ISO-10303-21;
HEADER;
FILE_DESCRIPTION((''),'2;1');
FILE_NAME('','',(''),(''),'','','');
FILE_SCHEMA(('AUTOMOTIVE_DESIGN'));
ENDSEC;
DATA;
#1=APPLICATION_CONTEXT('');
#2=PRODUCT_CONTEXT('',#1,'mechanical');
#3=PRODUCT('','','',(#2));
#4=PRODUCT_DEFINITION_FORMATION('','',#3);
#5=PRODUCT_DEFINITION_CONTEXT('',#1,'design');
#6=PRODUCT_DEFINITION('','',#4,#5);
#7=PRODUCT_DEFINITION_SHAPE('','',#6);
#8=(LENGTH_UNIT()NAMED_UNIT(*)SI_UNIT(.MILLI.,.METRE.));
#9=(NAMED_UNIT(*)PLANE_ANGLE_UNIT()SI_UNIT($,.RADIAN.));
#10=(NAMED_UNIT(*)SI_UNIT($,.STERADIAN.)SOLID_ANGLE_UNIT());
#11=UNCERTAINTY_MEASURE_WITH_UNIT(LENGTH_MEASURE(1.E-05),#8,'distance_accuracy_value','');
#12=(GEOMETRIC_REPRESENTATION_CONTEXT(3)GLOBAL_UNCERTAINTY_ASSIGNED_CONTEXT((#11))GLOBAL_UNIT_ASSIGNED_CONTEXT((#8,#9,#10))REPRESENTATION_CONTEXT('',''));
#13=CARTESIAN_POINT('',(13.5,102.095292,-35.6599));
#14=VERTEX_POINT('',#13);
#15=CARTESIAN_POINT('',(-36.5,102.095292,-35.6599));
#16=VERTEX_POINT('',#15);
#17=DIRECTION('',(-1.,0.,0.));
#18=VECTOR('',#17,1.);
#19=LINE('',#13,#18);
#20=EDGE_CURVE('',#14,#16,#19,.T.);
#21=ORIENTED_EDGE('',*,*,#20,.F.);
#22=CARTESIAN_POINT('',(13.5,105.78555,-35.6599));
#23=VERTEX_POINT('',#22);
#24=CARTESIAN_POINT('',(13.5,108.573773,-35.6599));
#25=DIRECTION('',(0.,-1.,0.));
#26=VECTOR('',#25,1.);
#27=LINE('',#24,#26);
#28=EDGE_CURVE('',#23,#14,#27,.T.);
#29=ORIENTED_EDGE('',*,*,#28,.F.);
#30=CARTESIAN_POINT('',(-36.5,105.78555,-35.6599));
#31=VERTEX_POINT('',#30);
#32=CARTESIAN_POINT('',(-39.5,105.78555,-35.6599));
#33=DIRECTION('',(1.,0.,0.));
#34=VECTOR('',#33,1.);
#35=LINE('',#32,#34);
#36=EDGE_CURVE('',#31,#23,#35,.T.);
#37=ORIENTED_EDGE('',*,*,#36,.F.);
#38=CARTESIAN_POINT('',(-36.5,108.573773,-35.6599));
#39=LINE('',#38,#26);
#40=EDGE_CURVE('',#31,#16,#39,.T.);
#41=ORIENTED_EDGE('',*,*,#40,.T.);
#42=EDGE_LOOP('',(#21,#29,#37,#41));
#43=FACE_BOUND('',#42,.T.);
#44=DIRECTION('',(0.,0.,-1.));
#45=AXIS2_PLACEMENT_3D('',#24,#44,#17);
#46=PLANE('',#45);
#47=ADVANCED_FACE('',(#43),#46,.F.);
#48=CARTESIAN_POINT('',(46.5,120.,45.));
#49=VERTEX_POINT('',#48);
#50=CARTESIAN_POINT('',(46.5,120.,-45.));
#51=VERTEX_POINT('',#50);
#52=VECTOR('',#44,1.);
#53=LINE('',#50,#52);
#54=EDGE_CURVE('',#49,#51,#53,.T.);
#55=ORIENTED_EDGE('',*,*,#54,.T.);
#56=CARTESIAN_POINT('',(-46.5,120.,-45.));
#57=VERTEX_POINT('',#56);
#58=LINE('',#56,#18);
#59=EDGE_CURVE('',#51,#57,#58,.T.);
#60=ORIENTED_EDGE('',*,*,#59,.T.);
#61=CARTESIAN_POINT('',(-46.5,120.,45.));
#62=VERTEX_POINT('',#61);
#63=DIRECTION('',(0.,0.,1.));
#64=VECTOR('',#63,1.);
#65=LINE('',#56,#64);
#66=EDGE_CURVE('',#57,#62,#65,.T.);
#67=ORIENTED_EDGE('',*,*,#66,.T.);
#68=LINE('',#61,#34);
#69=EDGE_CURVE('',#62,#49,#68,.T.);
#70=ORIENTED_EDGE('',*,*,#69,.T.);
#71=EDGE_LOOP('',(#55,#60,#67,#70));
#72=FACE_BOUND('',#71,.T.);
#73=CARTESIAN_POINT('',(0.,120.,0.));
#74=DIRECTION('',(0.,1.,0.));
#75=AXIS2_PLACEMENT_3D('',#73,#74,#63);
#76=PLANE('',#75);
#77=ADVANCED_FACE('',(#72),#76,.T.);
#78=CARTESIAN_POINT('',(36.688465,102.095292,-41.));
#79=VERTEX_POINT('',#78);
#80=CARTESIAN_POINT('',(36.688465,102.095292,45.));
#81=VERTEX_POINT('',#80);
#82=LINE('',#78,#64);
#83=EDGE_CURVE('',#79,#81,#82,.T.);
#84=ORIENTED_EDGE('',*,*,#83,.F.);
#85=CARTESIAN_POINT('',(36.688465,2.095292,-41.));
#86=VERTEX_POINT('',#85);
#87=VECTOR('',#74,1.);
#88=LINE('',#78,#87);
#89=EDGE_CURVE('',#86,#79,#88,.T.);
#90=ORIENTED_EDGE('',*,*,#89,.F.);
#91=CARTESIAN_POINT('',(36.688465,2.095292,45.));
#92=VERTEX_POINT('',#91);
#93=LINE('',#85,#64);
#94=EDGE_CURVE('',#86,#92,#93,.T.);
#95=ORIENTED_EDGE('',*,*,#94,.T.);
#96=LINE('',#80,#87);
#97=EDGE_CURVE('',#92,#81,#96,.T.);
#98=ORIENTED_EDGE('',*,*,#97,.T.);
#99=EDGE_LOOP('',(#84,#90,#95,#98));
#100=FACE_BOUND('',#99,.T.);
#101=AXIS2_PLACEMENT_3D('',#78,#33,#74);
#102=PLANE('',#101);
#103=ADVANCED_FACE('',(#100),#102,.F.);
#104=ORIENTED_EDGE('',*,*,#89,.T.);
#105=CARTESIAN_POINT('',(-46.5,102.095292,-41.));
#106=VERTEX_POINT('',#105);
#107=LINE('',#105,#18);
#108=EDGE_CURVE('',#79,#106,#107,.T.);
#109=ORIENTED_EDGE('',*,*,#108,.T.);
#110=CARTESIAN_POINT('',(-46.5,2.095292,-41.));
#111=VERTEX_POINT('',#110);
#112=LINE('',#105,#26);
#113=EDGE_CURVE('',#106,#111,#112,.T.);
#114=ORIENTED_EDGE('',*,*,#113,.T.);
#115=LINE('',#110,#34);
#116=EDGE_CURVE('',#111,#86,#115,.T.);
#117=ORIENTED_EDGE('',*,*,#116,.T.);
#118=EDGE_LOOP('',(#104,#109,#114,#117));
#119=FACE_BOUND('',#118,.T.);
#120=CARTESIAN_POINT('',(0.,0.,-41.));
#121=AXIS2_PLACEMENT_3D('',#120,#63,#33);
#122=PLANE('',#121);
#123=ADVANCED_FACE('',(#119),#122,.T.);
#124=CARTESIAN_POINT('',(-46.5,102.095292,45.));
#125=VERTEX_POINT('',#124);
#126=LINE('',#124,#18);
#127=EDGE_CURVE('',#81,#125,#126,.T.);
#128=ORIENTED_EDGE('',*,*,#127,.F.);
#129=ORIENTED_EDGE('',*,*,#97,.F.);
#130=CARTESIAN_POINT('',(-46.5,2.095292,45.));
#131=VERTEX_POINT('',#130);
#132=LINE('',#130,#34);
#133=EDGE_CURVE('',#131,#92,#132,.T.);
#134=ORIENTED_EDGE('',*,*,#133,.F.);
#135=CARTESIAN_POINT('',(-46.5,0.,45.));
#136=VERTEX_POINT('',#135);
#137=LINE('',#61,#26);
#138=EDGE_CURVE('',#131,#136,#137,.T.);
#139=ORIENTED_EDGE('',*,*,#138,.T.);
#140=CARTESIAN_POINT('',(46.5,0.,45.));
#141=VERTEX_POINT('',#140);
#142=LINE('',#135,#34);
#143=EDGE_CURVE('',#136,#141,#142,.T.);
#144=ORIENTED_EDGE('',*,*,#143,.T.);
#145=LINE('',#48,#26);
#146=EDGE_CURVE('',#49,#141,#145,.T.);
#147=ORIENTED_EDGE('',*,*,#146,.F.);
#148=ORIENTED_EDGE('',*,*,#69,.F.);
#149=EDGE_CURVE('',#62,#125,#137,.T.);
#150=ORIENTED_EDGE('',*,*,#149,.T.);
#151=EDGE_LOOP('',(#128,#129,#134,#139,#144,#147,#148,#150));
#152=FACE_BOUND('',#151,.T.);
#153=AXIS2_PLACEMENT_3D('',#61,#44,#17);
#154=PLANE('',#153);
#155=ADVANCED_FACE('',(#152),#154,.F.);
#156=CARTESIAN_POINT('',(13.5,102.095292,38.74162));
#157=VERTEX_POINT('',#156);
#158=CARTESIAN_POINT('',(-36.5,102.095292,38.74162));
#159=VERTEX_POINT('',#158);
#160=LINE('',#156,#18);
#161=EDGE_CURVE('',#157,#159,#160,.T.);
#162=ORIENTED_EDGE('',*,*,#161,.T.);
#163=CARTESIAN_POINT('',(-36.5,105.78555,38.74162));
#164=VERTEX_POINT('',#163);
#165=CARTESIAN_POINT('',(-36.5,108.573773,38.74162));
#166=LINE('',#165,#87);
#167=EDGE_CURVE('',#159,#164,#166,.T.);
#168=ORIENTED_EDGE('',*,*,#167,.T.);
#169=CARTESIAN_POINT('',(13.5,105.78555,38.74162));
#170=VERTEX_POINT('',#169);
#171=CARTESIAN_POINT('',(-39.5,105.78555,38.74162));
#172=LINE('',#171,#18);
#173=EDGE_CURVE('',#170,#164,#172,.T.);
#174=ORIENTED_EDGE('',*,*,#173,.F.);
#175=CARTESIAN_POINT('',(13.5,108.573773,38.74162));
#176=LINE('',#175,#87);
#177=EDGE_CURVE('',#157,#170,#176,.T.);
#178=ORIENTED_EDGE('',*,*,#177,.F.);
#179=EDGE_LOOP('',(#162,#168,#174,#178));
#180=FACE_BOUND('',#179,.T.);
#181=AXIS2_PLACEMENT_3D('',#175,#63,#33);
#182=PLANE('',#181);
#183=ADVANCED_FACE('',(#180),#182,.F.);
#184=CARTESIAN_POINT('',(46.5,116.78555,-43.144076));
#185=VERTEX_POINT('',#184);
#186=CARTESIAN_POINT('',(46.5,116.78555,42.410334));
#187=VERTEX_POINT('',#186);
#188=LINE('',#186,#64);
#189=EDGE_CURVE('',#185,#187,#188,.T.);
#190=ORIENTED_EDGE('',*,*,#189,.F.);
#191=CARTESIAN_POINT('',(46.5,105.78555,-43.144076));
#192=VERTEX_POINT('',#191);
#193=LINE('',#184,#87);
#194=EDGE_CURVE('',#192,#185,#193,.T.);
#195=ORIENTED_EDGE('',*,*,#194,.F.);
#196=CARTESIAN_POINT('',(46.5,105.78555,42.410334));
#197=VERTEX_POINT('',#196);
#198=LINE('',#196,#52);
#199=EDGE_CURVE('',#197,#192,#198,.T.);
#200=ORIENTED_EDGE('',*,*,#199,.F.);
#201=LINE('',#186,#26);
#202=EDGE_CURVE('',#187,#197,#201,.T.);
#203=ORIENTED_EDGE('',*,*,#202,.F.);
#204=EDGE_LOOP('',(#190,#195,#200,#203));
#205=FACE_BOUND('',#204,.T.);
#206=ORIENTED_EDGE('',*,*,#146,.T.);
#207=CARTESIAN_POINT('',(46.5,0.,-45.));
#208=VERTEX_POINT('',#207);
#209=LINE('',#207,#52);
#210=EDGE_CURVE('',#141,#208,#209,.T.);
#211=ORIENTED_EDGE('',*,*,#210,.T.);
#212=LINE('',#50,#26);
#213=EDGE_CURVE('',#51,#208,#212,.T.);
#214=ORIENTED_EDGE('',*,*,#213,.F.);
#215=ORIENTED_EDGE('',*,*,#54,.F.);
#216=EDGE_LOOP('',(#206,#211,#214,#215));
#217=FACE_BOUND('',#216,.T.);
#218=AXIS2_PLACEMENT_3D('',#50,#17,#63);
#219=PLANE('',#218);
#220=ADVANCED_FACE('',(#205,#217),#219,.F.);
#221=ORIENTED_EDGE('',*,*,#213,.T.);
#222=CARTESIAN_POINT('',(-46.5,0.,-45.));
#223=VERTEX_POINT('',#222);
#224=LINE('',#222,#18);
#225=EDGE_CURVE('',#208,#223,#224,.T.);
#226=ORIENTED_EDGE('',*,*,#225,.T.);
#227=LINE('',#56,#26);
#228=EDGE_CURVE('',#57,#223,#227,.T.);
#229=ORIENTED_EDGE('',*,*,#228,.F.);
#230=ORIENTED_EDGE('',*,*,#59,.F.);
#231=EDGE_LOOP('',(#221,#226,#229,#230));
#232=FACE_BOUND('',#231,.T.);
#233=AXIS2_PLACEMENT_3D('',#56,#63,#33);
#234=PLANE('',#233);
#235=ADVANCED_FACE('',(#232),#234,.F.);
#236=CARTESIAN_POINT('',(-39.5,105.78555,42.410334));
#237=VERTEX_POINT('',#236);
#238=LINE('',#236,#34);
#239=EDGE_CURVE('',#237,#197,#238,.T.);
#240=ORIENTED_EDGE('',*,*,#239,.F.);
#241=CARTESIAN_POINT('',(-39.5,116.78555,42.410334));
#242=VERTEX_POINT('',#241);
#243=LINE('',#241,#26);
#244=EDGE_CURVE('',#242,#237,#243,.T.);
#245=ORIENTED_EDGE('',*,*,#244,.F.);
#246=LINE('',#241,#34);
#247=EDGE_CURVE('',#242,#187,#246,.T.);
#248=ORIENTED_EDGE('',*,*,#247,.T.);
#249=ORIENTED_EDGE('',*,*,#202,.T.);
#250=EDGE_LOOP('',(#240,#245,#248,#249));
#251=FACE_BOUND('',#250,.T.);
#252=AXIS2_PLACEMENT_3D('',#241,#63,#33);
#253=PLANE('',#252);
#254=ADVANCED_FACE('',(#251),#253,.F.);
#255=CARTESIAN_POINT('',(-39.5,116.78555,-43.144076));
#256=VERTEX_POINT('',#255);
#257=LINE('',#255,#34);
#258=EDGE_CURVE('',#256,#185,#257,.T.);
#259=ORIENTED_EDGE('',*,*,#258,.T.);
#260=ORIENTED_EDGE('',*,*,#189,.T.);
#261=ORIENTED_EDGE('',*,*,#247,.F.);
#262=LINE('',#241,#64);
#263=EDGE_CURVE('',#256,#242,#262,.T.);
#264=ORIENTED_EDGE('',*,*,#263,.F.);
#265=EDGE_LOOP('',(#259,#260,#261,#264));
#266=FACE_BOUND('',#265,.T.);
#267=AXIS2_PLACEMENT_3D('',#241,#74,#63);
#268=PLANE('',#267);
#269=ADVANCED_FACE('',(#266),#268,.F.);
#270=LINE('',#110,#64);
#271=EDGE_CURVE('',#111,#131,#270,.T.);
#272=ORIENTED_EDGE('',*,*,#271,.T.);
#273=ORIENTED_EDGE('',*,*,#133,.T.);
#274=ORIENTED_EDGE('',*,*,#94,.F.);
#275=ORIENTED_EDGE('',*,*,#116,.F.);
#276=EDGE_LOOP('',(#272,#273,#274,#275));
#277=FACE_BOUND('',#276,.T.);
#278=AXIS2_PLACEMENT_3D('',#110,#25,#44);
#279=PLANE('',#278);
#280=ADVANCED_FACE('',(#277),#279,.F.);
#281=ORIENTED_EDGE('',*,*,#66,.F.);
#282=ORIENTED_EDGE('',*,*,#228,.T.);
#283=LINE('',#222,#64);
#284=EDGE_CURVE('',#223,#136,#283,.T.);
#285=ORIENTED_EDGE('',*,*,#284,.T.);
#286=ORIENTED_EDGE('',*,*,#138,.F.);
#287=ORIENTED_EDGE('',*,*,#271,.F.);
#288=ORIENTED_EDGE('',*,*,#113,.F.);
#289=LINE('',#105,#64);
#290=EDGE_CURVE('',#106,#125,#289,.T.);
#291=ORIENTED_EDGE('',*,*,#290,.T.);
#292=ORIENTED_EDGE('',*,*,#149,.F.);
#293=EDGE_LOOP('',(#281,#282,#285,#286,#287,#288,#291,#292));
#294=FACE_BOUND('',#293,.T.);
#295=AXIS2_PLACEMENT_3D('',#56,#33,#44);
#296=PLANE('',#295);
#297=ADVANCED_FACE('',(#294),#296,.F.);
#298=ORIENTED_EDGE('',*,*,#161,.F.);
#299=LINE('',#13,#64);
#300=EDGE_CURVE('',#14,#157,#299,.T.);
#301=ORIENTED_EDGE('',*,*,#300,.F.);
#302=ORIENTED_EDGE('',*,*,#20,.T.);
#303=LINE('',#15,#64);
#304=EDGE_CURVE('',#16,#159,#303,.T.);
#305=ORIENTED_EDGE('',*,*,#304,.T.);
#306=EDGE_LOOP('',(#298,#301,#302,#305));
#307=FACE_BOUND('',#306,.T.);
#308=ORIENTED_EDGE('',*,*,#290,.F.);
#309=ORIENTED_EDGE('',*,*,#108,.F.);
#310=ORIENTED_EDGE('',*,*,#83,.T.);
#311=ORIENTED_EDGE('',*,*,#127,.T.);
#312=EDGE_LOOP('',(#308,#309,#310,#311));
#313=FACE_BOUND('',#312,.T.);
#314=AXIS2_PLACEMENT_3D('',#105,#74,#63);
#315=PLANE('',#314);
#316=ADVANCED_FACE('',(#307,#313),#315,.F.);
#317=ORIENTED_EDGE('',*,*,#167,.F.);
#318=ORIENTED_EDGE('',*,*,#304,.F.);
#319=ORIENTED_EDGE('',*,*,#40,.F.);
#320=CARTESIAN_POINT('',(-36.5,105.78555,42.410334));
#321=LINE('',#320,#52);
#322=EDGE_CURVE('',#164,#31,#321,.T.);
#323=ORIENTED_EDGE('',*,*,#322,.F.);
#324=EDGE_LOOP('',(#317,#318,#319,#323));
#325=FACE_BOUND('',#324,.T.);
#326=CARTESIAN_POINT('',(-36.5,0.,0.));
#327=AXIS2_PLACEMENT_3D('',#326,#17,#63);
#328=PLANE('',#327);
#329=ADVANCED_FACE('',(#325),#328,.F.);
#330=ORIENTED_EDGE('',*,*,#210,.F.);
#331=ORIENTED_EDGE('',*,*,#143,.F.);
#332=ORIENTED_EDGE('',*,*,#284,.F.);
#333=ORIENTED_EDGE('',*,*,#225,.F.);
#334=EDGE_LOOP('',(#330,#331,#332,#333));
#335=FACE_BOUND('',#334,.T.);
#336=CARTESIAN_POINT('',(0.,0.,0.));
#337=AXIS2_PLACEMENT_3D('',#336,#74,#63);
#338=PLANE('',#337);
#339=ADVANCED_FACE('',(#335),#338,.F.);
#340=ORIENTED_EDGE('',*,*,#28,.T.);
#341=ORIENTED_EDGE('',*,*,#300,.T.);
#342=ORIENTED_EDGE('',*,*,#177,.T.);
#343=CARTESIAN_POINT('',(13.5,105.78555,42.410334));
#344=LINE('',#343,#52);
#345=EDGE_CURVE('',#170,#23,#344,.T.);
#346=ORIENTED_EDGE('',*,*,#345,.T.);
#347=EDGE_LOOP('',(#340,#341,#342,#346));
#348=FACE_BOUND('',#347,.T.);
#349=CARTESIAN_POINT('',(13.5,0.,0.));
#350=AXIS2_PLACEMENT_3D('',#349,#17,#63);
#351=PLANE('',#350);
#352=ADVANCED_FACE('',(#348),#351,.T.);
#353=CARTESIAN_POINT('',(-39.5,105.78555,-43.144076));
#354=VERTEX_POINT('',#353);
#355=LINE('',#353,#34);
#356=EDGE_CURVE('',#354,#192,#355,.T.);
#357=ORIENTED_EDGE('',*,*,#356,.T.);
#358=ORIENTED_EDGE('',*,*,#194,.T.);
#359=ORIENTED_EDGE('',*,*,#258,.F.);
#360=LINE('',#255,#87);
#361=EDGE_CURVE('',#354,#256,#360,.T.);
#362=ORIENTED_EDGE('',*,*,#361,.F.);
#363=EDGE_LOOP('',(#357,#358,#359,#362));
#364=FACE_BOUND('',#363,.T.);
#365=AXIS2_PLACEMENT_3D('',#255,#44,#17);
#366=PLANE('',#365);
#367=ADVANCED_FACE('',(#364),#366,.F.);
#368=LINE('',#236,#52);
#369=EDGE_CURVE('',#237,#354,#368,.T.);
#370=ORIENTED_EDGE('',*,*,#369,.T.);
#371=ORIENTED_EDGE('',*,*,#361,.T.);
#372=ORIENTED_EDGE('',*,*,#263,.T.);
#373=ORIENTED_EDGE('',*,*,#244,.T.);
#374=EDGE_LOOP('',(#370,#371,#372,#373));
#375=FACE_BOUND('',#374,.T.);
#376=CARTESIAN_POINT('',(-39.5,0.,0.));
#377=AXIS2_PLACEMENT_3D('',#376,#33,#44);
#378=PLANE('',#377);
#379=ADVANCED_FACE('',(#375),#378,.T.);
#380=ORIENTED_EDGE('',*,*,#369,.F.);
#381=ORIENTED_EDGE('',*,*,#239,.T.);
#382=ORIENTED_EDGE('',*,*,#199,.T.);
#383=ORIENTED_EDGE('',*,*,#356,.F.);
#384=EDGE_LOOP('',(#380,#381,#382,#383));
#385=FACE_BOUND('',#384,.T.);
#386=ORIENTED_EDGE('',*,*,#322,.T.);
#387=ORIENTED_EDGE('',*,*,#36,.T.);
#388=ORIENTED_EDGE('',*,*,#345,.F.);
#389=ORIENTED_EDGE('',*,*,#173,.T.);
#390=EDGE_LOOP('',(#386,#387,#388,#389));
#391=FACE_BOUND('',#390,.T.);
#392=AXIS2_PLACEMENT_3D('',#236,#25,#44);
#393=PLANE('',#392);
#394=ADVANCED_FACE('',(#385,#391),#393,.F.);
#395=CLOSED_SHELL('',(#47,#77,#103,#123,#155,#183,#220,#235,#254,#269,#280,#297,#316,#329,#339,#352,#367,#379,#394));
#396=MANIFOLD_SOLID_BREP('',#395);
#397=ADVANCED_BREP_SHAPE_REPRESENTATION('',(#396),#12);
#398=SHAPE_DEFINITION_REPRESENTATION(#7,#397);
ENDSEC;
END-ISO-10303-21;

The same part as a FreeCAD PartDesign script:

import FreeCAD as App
import Part
import Sketcher
Q = App.Units.Quantity


def add_polygon(sketch, points):
    """Adds a closed chain of lines whose ends are joined by coincident constraints."""
    first, n = sketch.GeometryCount, len(points)
    for a, b in zip(points, points[1:] + points[:1]):
        sketch.addGeometry(Part.LineSegment(App.Vector(*a, 0), App.Vector(*b, 0)), False)
    for i in range(n):
        sketch.addConstraint(Sketcher.Constraint("Coincident", first + i, 2, first + (i + 1) % n, 1))

doc = App.newDocument("Part")
body = doc.addObject("PartDesign::Body", "Body")

sketch1 = body.newObject("Sketcher::SketchObject", "Sketch")
sketch1.AttachmentSupport = (doc.getObject("XZ_Plane"), [""])
sketch1.MapMode = "FlatFace"
add_polygon(sketch1, [(-46.5, -45), (-46.5, 45), (46.5, 45), (46.5, -45)])
sketch1.addConstraint(Sketcher.Constraint("Vertical", 0))
sketch1.addConstraint(Sketcher.Constraint("Horizontal", 1))
sketch1.addConstraint(Sketcher.Constraint("Vertical", 2))
sketch1.addConstraint(Sketcher.Constraint("Horizontal", 3))
sketch1.addConstraint(Sketcher.Constraint("Symmetric", 0, 2, 2, 2, -1, 1))
sketch1.addConstraint(Sketcher.Constraint("DistanceX", 1, 1, 1, 2, Q("93 mm")))
sketch1.addConstraint(Sketcher.Constraint("DistanceY", 0, 1, 0, 2, Q("90 mm")))
pad1 = body.newObject("PartDesign::Pad", "Pad")
pad1.Profile = sketch1
pad1.Length = 120
pad1.Reversed = True

sketch2 = body.newObject("Sketcher::SketchObject", "Sketch001")
sketch2.AttachmentSupport = (doc.getObject("XY_Plane"), [""])
sketch2.MapMode = "FlatFace"
sketch2.AttachmentOffset = App.Placement(App.Vector(0, 0, 45), App.Rotation())
add_polygon(sketch2, [(-46.5, 102.095292), (-46.5, 2.095292), (36.688465, 2.095292), (36.688465, 102.095292)])
sketch2.addConstraint(Sketcher.Constraint("Vertical", 0))
sketch2.addConstraint(Sketcher.Constraint("Horizontal", 1))
sketch2.addConstraint(Sketcher.Constraint("Vertical", 2))
sketch2.addConstraint(Sketcher.Constraint("Horizontal", 3))
sketch2.addConstraint(Sketcher.Constraint("DistanceY", 0, 2, 0, 1, Q("100 mm")))
sketch2.addConstraint(Sketcher.Constraint("DistanceX", 0, 2, -1, 1, Q("46.5 mm")))
sketch2.addConstraint(Sketcher.Constraint("DistanceX", 1, 1, 1, 2, Q("83.188465 mm")))
sketch2.addConstraint(Sketcher.Constraint("DistanceY", -1, 1, 0, 2, Q("2.095292 mm")))
pocket1 = body.newObject("PartDesign::Pocket", "Pocket")
pocket1.Profile = sketch2
pocket1.Length = 86

sketch3 = body.newObject("Sketcher::SketchObject", "Sketch002")
sketch3.AttachmentSupport = (doc.getObject("YZ_Plane"), [""])
sketch3.MapMode = "FlatFace"
sketch3.AttachmentOffset = App.Placement(App.Vector(0, 0, 46.5), App.Rotation())
add_polygon(sketch3, [(116.78555, 42.410334), (105.78555, 42.410334), (105.78555, -43.144076), (116.78555, -43.144076)])
sketch3.addConstraint(Sketcher.Constraint("Horizontal", 0))
sketch3.addConstraint(Sketcher.Constraint("Vertical", 1))
sketch3.addConstraint(Sketcher.Constraint("Horizontal", 2))
sketch3.addConstraint(Sketcher.Constraint("Vertical", 3))
sketch3.addConstraint(Sketcher.Constraint("DistanceX", 0, 2, 0, 1, Q("11 mm")))
sketch3.addConstraint(Sketcher.Constraint("DistanceY", 1, 2, 1, 1, Q("85.55441 mm")))
sketch3.addConstraint(Sketcher.Constraint("DistanceX", -1, 1, 0, 2, Q("105.78555 mm")))
sketch3.addConstraint(Sketcher.Constraint("DistanceY", -1, 1, 0, 2, Q("42.410334 mm")))
pocket2 = body.newObject("PartDesign::Pocket", "Pocket001")
pocket2.Profile = sketch3
pocket2.Length = 86

sketch4 = body.newObject("Sketcher::SketchObject", "Sketch003")
sketch4.AttachmentSupport = (doc.getObject("YZ_Plane"), [""])
sketch4.MapMode = "FlatFace"
sketch4.AttachmentOffset = App.Placement(App.Vector(0, 0, -36.5), App.Rotation())
add_polygon(sketch4, [(108.573773, -35.6599), (102.095292, -35.6599), (102.095292, 38.74162), (108.573773, 38.74162)])
sketch4.addConstraint(Sketcher.Constraint("Horizontal", 0))
sketch4.addConstraint(Sketcher.Constraint("Vertical", 1))
sketch4.addConstraint(Sketcher.Constraint("Horizontal", 2))
sketch4.addConstraint(Sketcher.Constraint("Vertical", 3))
sketch4.addConstraint(Sketcher.Constraint("DistanceX", 0, 2, 0, 1, Q("6.478481 mm")))
sketch4.addConstraint(Sketcher.Constraint("DistanceY", 1, 1, 1, 2, Q("74.401519 mm")))
sketch4.addConstraint(Sketcher.Constraint("DistanceY", 0, 2, -1, 1, Q("35.6599 mm")))
sketch4.addConstraint(Sketcher.Constraint("DistanceX", -1, 1, 0, 2, Q("102.095292 mm")))
pocket3 = body.newObject("PartDesign::Pocket", "Pocket002")
pocket3.Profile = sketch4
pocket3.Length = 50
pocket3.Reversed = True

doc.recompute()
